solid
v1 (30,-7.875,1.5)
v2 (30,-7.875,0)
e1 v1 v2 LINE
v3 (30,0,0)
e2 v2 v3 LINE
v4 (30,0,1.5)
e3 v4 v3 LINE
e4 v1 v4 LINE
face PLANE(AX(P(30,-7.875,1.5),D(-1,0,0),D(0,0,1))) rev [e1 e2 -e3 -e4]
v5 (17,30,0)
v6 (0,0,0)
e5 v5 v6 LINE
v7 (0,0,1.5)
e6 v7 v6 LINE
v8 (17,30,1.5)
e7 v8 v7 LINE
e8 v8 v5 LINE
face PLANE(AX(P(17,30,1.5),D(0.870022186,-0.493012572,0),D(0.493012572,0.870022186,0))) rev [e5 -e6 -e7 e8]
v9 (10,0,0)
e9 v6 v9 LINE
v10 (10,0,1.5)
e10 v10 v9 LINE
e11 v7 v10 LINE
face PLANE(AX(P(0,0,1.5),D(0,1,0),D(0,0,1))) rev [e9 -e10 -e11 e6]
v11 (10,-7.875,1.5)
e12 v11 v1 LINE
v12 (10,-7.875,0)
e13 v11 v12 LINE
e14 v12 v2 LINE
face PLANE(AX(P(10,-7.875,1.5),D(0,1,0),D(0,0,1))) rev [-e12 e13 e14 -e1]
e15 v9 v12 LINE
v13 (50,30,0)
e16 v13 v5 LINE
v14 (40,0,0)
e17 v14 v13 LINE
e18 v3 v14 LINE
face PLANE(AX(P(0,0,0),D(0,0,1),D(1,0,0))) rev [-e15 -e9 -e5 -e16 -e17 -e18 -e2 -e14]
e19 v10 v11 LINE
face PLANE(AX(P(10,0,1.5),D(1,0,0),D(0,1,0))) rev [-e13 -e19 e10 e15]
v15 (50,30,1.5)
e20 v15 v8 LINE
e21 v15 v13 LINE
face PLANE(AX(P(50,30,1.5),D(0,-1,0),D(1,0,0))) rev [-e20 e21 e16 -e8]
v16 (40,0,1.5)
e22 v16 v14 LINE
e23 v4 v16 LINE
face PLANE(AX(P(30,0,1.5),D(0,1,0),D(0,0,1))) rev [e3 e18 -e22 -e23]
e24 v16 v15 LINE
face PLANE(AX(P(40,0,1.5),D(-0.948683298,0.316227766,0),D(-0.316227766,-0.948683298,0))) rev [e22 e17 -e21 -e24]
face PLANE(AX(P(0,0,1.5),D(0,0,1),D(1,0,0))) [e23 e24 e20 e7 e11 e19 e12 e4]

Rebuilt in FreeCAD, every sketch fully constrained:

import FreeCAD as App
import Part
import Sketcher
from FreeCAD import Vector
Q = App.Units.Quantity

doc = App.newDocument("Part")
params = doc.addObject("Spreadsheet::Sheet", "Params")
for row, (alias, value) in enumerate([
    ("sketch1_width", "10 mm"),
    ("sketch1_width2", "20 mm"),
    ("sketch1_width3", "33 mm"),
    ("pad1_length", "1.5 mm"),
], start=1):
    params.set(f"A{row}", alias)
    params.set(f"B{row}", "=" + value)
    params.setAlias(f"B{row}", alias)

body = doc.addObject("PartDesign::Body", "Body")

# Sketch on XY plane
sketch1 = body.newObject("Sketcher::SketchObject", "Sketch")
sketch1.AttachmentSupport = (doc.getObject("XY_Plane"), [""])
sketch1.MapMode = "FlatFace"
sketch1.addGeometry([
    Part.LineSegment(Vector(0, 0, 0), Vector(10, 0, 0)),  # 0
    Part.LineSegment(Vector(10, 0, 0), Vector(10, -8, 0)),  # 1
    Part.LineSegment(Vector(10, -8, 0), Vector(30, -8, 0)),  # 2
    Part.LineSegment(Vector(30, -8, 0), Vector(30, 0, 0)),  # 3
    Part.LineSegment(Vector(30, 0, 0), Vector(40, 0, 0)),  # 4
    Part.LineSegment(Vector(40, 0, 0), Vector(50, 30, 0)),  # 5
    Part.LineSegment(Vector(50, 30, 0), Vector(17, 30, 0)),  # 6
    Part.LineSegment(Vector(17, 30, 0), Vector(0, 0, 0)),  # 7
], False)
sketch1.addConstraint([
    Sketcher.Constraint("Coincident", 0, 2, 1, 1),
    Sketcher.Constraint("Coincident", 1, 2, 2, 1),
    Sketcher.Constraint("Coincident", 2, 2, 3, 1),
    Sketcher.Constraint("Coincident", 3, 2, 4, 1),
    Sketcher.Constraint("Coincident", 4, 2, 5, 1),
    Sketcher.Constraint("Coincident", 5, 2, 6, 1),
    Sketcher.Constraint("Coincident", 6, 2, 7, 1),
    Sketcher.Constraint("Coincident", 7, 2, 0, 1),
    Sketcher.Constraint("Horizontal", 0),
    Sketcher.Constraint("Vertical", 1),
    Sketcher.Constraint("Horizontal", 2),
    Sketcher.Constraint("Vertical", 3),
    Sketcher.Constraint("Horizontal", 4),
    Sketcher.Constraint("Horizontal", 6),
    Sketcher.Constraint("Coincident", 7, 2, -1, 1),
    Sketcher.Constraint("PointOnObject", 3, 2, -1),
    Sketcher.Constraint("Equal", 0, 4),
    Sketcher.Constraint("DistanceX", 0, 1, 0, 2, Q("10 mm")),
    Sketcher.Constraint("DistanceX", 2, 1, 2, 2, Q("20 mm")),
    Sketcher.Constraint("DistanceX", 6, 2, 6, 1, Q("33 mm")),
    Sketcher.Constraint("DistanceX", -1, 1, 5, 2, Q("50 mm")),
    Sketcher.Constraint("DistanceY", -1, 1, 5, 2, Q("30 mm")),
    Sketcher.Constraint("DistanceY", 1, 2, 1, 1, Q("7.875 mm")),
])
sketch1.setExpression("Constraints[17]", "Params.sketch1_width")
sketch1.setExpression("Constraints[18]", "Params.sketch1_width2")
sketch1.setExpression("Constraints[19]", "Params.sketch1_width3")
pad1 = body.newObject("PartDesign::Pad", "Pad")
pad1.Profile = sketch1
pad1.setExpression("Length", "Params.pad1_length")

doc.recompute()
